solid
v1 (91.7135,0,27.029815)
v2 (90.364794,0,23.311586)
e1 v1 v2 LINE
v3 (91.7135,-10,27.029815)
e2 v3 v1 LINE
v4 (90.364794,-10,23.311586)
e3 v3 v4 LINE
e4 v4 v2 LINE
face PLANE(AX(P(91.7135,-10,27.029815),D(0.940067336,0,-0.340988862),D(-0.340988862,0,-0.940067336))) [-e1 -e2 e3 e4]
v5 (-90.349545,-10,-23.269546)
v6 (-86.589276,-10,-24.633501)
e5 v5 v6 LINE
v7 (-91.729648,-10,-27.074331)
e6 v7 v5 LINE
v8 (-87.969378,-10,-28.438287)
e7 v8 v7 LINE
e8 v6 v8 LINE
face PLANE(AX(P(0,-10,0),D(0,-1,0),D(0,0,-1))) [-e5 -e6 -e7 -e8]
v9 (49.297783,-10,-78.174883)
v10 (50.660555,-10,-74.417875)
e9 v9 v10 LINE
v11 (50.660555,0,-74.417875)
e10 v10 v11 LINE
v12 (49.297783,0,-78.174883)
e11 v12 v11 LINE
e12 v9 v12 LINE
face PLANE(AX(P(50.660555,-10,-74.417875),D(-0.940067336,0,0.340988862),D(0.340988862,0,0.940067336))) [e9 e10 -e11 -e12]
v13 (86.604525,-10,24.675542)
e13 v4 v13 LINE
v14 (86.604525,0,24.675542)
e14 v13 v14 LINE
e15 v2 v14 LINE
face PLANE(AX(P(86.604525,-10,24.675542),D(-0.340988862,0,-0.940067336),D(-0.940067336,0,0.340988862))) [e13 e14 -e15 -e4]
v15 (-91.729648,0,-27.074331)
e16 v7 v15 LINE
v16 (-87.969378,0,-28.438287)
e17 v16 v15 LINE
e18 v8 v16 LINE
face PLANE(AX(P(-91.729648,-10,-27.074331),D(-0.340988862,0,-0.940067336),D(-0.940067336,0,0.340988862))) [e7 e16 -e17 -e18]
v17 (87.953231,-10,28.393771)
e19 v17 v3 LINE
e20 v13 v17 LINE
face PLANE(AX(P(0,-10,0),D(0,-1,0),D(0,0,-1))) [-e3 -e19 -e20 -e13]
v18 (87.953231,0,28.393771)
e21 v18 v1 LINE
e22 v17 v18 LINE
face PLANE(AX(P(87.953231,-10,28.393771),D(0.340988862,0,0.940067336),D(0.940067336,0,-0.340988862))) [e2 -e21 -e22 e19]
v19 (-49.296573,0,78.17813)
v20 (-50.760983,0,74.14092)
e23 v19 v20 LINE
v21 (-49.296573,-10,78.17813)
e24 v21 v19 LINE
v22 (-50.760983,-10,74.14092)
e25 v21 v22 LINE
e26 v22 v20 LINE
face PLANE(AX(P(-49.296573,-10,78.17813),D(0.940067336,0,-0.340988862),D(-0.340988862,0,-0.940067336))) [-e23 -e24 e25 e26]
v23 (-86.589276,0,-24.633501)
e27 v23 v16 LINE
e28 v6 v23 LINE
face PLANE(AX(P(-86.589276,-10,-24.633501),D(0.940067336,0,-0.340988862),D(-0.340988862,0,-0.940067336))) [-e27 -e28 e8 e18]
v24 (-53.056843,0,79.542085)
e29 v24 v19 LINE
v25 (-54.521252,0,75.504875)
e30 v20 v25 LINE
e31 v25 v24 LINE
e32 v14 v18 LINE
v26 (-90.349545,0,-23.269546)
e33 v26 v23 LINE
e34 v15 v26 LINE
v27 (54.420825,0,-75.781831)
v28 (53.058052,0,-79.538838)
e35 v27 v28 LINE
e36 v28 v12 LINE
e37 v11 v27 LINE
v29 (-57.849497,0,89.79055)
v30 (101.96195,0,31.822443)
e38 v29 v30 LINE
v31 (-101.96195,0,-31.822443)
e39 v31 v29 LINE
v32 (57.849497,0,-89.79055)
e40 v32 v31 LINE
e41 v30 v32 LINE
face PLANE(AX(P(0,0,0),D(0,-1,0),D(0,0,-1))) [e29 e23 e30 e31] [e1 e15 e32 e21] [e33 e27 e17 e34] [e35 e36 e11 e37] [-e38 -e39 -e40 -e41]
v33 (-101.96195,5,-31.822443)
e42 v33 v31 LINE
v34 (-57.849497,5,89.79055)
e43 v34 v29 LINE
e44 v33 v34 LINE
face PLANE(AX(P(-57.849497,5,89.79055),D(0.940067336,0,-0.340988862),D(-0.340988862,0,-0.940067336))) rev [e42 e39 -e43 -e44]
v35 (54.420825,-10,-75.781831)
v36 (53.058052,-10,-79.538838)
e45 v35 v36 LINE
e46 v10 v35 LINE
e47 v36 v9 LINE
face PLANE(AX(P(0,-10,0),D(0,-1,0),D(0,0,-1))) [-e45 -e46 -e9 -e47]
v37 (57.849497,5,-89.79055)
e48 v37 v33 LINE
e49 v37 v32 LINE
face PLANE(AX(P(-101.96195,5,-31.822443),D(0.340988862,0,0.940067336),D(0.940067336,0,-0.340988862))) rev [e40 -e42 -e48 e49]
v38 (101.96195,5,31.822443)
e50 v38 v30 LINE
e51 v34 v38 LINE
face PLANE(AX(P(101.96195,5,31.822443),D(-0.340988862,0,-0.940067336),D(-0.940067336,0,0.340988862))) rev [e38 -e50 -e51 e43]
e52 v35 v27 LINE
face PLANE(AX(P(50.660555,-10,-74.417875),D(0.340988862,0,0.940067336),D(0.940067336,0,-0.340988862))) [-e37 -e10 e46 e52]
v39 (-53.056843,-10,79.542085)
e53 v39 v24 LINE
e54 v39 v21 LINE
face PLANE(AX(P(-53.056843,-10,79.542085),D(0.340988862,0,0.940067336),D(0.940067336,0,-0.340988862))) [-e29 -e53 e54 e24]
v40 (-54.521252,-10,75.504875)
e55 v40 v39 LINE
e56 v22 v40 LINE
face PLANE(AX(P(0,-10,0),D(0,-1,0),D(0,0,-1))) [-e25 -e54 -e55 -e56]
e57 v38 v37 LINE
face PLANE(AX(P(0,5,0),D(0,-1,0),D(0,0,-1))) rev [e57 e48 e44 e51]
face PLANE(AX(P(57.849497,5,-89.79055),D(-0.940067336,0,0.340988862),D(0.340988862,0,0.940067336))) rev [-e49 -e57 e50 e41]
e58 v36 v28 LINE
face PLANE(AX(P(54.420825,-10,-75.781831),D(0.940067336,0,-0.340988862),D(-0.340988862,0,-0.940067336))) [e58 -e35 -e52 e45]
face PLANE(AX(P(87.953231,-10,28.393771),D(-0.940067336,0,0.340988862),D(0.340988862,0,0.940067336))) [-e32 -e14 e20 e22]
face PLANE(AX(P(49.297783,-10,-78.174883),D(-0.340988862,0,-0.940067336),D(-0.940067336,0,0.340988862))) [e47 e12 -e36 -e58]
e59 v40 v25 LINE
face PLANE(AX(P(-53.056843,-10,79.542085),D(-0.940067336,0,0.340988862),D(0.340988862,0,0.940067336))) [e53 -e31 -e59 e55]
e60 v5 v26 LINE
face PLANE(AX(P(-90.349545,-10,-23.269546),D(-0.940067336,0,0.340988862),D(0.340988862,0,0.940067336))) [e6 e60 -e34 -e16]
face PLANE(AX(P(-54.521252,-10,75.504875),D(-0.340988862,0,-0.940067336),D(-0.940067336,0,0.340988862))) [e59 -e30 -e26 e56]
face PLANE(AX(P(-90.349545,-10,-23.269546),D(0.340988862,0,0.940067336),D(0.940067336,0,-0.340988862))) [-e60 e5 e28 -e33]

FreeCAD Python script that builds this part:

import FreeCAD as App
import Part
import Sketcher

V = App.Vector
Q = App.Units.Quantity

doc = App.newDocument("Part")
params = doc.addObject("Spreadsheet::Sheet", "Params")
for row, (alias, value) in enumerate([
    ("sketch1_length", "170 mm"),
    ("pad1_length", "5 mm"),
    ("sketch2_length", "4 mm"),
    ("pad2_length", "10 mm"),
], start=1):
    params.set(f"A{row}", alias)
    params.set(f"B{row}", "=" + value)
    params.setAlias(f"B{row}", alias)

body = doc.addObject("PartDesign::Body", "Body")

# Sketch on XZ plane
sketch1 = body.newObject("Sketcher::SketchObject", "Sketch")
sketch1.AttachmentSupport = (doc.getObject("XZ_Plane"), [""])
sketch1.MapMode = "FlatFace"
sketch1.addGeometry(Part.LineSegment(V(58, -90, 0), V(-102, -32, 0)), False)
sketch1.addGeometry(Part.LineSegment(V(-102, -32, 0), V(-58, 90, 0)), False)
sketch1.addGeometry(Part.LineSegment(V(-58, 90, 0), V(102, 32, 0)), False)
sketch1.addGeometry(Part.LineSegment(V(102, 32, 0), V(58, -90, 0)), False)
sketch1.addConstraint(Sketcher.Constraint("Coincident", 0, 2, 1, 1))
sketch1.addConstraint(Sketcher.Constraint("Coincident", 1, 2, 2, 1))
sketch1.addConstraint(Sketcher.Constraint("Coincident", 2, 2, 3, 1))
sketch1.addConstraint(Sketcher.Constraint("Coincident", 3, 2, 0, 1))
sketch1.addConstraint(Sketcher.Constraint("Symmetric", 0, 2, 2, 2, -1, 1))
sketch1.addConstraint(Sketcher.Constraint("Symmetric", 1, 2, 3, 2, -1, 1))
sketch1.addConstraint(Sketcher.Constraint("Perpendicular", 0, 1))
sketch1.addConstraint(Sketcher.Constraint("Distance", 0, Q("170 mm")))
sketch1.addConstraint(Sketcher.Constraint("DistanceX", 0, 2, 2, 2, Q("203.9239 mm")))
sketch1.addConstraint(Sketcher.Constraint("DistanceY", 3, 2, 1, 2, Q("179.581099 mm")))
sketch1.setExpression("Constraints[7]", "Params.sketch1_length")
pad1 = body.newObject("PartDesign::Pad", "Pad")
pad1.Profile = sketch1
pad1.setExpression("Length", "Params.pad1_length")
pad1.Reversed = True

# Sketch on XZ plane
sketch2 = body.newObject("Sketcher::SketchObject", "Sketch001")
sketch2.AttachmentSupport = (doc.getObject("XZ_Plane"), [""])
sketch2.MapMode = "FlatFace"
sketch2.addGeometry(Part.LineSegment(V(-53.1, 79.5, 0), V(-49.3, 78.2, 0)), False)
sketch2.addGeometry(Part.LineSegment(V(-49.3, 78.2, 0), V(-50.8, 74.1, 0)), False)
sketch2.addGeometry(Part.LineSegment(V(-50.8, 74.1, 0), V(-54.5, 75.5, 0)), False)
sketch2.addGeometry(Part.LineSegment(V(-54.5, 75.5, 0), V(-53.1, 79.5, 0)), False)
sketch2.addGeometry(Part.LineSegment(V(88, 28.4, 0), V(91.7, 27, 0)), False)
sketch2.addGeometry(Part.LineSegment(V(91.7, 27, 0), V(90.4, 23.3, 0)), False)
sketch2.addGeometry(Part.LineSegment(V(90.4, 23.3, 0), V(86.6, 24.7, 0)), False)
sketch2.addGeometry(Part.LineSegment(V(86.6, 24.7, 0), V(88, 28.4, 0)), False)
sketch2.addGeometry(Part.LineSegment(V(50.7, -74.4, 0), V(54.4, -75.8, 0)), False)
sketch2.addGeometry(Part.LineSegment(V(54.4, -75.8, 0), V(53.1, -79.5, 0)), False)
sketch2.addGeometry(Part.LineSegment(V(53.1, -79.5, 0), V(49.3, -78.2, 0)), False)
sketch2.addGeometry(Part.LineSegment(V(49.3, -78.2, 0), V(50.7, -74.4, 0)), False)
sketch2.addGeometry(Part.LineSegment(V(-90.3, -23.3, 0), V(-86.6, -24.6, 0)), False)
sketch2.addGeometry(Part.LineSegment(V(-86.6, -24.6, 0), V(-88, -28.4, 0)), False)
sketch2.addGeometry(Part.LineSegment(V(-88, -28.4, 0), V(-91.7, -27.1, 0)), False)
sketch2.addGeometry(Part.LineSegment(V(-91.7, -27.1, 0), V(-90.3, -23.3, 0)), False)
sketch2.addConstraint(Sketcher.Constraint("Coincident", 0, 2, 1, 1))
sketch2.addConstraint(Sketcher.Constraint("Coincident", 1, 2, 2, 1))
sketch2.addConstraint(Sketcher.Constraint("Coincident", 2, 2, 3, 1))
sketch2.addConstraint(Sketcher.Constraint("Coincident", 3, 2, 0, 1))
sketch2.addConstraint(Sketcher.Constraint("Coincident", 4, 2, 5, 1))
sketch2.addConstraint(Sketcher.Constraint("Coincident", 5, 2, 6, 1))
sketch2.addConstraint(Sketcher.Constraint("Coincident", 6, 2, 7, 1))
sketch2.addConstraint(Sketcher.Constraint("Coincident", 7, 2, 4, 1))
sketch2.addConstraint(Sketcher.Constraint("Coincident", 8, 2, 9, 1))
sketch2.addConstraint(Sketcher.Constraint("Coincident", 9, 2, 10, 1))
sketch2.addConstraint(Sketcher.Constraint("Coincident", 10, 2, 11, 1))
sketch2.addConstraint(Sketcher.Constraint("Coincident", 11, 2, 8, 1))
sketch2.addConstraint(Sketcher.Constraint("Coincident", 12, 2, 13, 1))
sketch2.addConstraint(Sketcher.Constraint("Coincident", 13, 2, 14, 1))
sketch2.addConstraint(Sketcher.Constraint("Coincident", 14, 2, 15, 1))
sketch2.addConstraint(Sketcher.Constraint("Coincident", 15, 2, 12, 1))
sketch2.addConstraint(Sketcher.Constraint("Perpendicular", 0, 1))
sketch2.addConstraint(Sketcher.Constraint("Perpendicular", 1, 2))
sketch2.addConstraint(Sketcher.Constraint("Perpendicular", 2, 3))
sketch2.addConstraint(Sketcher.Constraint("Perpendicular", 3, 4))
sketch2.addConstraint(Sketcher.Constraint("Perpendicular", 4, 5))
sketch2.addConstraint(Sketcher.Constraint("Perpendicular", 5, 6))
sketch2.addConstraint(Sketcher.Constraint("Perpendicular", 6, 7))
sketch2.addConstraint(Sketcher.Constraint("Perpendicular", 7, 8))
sketch2.addConstraint(Sketcher.Constraint("Perpendicular", 8, 9))
sketch2.addConstraint(Sketcher.Constraint("Perpendicular", 9, 10))
sketch2.addConstraint(Sketcher.Constraint("Perpendicular", 10, 11))
sketch2.addConstraint(Sketcher.Constraint("Perpendicular", 11, 12))
sketch2.addConstraint(Sketcher.Constraint("Perpendicular", 12, 13))
sketch2.addConstraint(Sketcher.Constraint("Perpendicular", 13, 14))
sketch2.addConstraint(Sketcher.Constraint("Perpendicular", 14, 15))
sketch2.addConstraint(Sketcher.Constraint("Equal", 2, 4))
sketch2.addConstraint(Sketcher.Constraint("Equal", 6, 8))
sketch2.addConstraint(Sketcher.Constraint("Equal", 10, 12))
sketch2.addConstraint(Sketcher.Constraint("Distance", 0, Q("4 mm")))
sketch2.addConstraint(Sketcher.Constraint("DistanceX", -1, 1, 4, 2, Q("91.7135 mm")))
sketch2.addConstraint(Sketcher.Constraint("DistanceY", 12, 2, -1, 1, Q("24.633501 mm")))
sketch2.addConstraint(Sketcher.Constraint("DistanceY", 5, 2, 3, 2, Q("56.230499 mm")))
sketch2.addConstraint(Sketcher.Constraint("DistanceX", 0, 2, 6, 2, Q("135.901098 mm")))
sketch2.addConstraint(Sketcher.Constraint("DistanceX", 8, 2, 6, 2, Q("32.1837 mm")))
sketch2.addConstraint(Sketcher.Constraint("DistanceY", 8, 2, 7, 2, Q("104.175601 mm")))
sketch2.addConstraint(Sketcher.Constraint("Distance", 5, Q("3.955279 mm")))
sketch2.addConstraint(Sketcher.Constraint("Distance", 9, Q("3.99653 mm")))
sketch2.addConstraint(Sketcher.Constraint("DistanceY", -1, 1, 0, 2, Q("78.17813 mm")))
sketch2.addConstraint(Sketcher.Constraint("DistanceY", -1, 1, 1, 2, Q("74.14092 mm")))
sketch2.addConstraint(Sketcher.Constraint("DistanceY", -1, 1, 6, 2, Q("24.675542 mm")))
sketch2.addConstraint(Sketcher.Constraint("DistanceX", 13, 2, -1, 1, Q("87.969378 mm")))
sketch2.addConstraint(Sketcher.Constraint("DistanceY", 14, 2, -1, 1, Q("27.074331 mm")))
sketch2.setExpression("Constraints[34]", "Params.sketch2_length")
pad2 = body.newObject("PartDesign::Pad", "Pad001")
pad2.Profile = sketch2
pad2.setExpression("Length", "Params.pad2_length")

doc.recompute()
